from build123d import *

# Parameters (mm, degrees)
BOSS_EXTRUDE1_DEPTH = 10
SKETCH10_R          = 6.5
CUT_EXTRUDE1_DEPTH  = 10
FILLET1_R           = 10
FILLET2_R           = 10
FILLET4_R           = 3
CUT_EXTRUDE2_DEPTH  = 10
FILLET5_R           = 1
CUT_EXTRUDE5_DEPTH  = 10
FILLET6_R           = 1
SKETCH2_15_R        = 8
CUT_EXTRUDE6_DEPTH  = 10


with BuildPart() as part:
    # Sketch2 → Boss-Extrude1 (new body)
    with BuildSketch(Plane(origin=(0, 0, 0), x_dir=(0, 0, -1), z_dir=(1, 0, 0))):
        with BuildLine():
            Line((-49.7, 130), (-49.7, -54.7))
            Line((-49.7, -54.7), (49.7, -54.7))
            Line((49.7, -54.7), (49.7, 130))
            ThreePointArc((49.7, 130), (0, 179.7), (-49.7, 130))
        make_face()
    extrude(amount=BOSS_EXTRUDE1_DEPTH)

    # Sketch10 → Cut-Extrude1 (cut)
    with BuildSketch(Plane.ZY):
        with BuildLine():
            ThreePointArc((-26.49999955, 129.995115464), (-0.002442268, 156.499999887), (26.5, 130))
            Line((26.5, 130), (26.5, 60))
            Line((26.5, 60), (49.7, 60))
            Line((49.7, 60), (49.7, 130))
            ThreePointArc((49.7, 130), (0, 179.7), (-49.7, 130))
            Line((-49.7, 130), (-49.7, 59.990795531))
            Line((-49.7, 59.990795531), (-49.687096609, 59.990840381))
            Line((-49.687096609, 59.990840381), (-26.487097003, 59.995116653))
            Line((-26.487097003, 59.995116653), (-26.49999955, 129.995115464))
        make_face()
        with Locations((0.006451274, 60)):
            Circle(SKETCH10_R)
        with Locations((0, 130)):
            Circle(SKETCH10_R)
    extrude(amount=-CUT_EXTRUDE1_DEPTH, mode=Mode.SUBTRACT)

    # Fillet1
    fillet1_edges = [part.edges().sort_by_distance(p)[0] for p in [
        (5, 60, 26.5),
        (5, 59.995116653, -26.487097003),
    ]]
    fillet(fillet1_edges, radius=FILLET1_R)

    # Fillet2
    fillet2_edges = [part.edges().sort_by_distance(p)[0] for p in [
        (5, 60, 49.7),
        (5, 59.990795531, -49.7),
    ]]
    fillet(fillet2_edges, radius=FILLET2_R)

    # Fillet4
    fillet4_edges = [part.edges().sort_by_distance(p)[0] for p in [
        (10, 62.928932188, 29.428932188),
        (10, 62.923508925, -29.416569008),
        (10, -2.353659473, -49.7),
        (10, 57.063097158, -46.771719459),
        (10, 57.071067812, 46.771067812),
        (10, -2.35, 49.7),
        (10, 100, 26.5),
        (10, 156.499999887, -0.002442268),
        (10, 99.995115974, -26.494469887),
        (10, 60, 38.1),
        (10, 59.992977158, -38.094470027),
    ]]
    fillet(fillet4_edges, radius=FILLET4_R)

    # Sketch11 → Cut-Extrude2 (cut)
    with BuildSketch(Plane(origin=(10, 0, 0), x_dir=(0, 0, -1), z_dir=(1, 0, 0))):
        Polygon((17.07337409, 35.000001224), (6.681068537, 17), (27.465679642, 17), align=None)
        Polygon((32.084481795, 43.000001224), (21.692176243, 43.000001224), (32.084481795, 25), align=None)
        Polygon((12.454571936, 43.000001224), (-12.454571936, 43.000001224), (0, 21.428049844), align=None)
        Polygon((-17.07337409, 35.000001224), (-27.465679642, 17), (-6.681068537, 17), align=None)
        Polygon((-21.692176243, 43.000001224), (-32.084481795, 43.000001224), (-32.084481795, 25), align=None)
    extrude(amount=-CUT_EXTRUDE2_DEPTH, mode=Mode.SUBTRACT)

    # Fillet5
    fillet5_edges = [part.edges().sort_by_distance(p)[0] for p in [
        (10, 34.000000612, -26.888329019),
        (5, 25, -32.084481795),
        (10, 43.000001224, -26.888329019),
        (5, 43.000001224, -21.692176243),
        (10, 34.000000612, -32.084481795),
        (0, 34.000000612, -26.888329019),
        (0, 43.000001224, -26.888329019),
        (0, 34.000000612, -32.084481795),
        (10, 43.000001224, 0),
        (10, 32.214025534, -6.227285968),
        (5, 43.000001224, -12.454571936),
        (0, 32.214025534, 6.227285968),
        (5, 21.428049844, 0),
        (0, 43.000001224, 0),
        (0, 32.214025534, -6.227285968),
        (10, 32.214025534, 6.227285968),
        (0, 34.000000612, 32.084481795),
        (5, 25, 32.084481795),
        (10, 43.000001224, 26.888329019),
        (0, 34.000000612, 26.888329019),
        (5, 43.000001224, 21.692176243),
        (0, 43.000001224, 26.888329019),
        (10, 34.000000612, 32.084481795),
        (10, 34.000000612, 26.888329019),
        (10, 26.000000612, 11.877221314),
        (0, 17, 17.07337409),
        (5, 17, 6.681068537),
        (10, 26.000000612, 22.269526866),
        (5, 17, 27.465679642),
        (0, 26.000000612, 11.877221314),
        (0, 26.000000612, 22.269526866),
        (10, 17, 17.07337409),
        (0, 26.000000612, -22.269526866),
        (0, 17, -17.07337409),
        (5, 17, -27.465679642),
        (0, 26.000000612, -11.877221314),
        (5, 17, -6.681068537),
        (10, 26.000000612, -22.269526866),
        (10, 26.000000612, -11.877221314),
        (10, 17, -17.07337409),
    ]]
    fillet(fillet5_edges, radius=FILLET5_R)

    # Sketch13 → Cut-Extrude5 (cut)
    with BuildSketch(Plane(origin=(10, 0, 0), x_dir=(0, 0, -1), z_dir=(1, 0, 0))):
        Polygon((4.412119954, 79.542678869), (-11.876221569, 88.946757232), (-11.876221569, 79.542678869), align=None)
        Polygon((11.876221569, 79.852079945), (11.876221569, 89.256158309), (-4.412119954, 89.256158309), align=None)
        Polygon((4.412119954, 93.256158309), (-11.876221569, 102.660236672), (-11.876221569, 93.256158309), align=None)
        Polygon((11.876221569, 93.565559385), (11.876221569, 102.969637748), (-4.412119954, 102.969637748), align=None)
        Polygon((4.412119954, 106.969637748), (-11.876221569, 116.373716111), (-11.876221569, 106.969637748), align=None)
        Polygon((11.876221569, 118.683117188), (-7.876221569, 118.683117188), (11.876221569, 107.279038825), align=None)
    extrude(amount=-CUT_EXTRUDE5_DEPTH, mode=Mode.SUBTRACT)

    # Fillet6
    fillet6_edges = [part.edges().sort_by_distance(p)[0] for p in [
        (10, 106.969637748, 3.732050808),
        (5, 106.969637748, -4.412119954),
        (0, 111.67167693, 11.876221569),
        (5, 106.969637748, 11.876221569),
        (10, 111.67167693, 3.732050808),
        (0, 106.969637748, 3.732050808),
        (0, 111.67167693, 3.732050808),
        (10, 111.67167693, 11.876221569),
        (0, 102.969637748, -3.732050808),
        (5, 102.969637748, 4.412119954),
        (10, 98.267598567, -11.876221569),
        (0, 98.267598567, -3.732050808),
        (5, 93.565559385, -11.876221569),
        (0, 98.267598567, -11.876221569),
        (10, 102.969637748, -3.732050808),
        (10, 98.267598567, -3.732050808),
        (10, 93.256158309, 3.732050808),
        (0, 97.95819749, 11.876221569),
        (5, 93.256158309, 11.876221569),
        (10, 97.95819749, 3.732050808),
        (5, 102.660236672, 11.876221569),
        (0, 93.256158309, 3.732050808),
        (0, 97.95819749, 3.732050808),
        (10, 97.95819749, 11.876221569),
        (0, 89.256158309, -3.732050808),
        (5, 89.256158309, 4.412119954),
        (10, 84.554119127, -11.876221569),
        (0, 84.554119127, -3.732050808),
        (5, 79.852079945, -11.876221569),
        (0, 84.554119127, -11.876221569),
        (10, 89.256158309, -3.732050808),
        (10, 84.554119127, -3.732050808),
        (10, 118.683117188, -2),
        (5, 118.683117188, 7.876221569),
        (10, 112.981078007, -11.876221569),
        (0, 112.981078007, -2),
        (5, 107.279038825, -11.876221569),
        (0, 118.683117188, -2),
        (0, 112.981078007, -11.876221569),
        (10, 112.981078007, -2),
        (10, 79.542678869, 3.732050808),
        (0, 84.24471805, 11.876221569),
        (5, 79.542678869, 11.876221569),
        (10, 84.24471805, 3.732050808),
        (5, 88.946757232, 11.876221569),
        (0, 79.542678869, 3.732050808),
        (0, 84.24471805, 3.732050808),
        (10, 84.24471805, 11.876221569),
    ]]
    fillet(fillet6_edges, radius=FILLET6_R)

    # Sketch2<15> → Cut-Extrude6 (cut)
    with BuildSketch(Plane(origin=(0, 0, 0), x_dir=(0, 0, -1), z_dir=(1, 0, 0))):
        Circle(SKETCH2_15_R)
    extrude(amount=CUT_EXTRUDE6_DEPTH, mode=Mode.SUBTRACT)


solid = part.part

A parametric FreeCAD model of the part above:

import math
import FreeCAD as App
import Part
import Sketcher

V = App.Vector
Q = App.Units.Quantity


def edges_at(feature, points):
    """Names of the edges that pass closest to the given points."""
    edges = feature.Shape.Edges
    near = lambda p: min(range(len(edges)), key=lambda i: edges[i].distToShape(Part.Vertex(*p))[0])
    return sorted({f"Edge{near(p) + 1}" for p in points})


def add_polygon(sketch, points):
    """Adds a closed chain of lines whose ends are joined by coincident constraints."""
    first, n = sketch.GeometryCount, len(points)
    for a, b in zip(points, points[1:] + points[:1]):
        sketch.addGeometry(Part.LineSegment(App.Vector(*a, 0), App.Vector(*b, 0)), False)
    for i in range(n):
        sketch.addConstraint(Sketcher.Constraint("Coincident", first + i, 2, first + (i + 1) % n, 1))

doc = App.newDocument("Part")
body = doc.addObject("PartDesign::Body", "Body")

sketch1 = body.newObject("Sketcher::SketchObject", "Sketch")
sketch1.AttachmentSupport = (doc.getObject("YZ_Plane"), [""])
sketch1.MapMode = "FlatFace"
sketch1.addGeometry(Part.LineSegment(V(130, 50, 0), V(-55, 50, 0)), False)
sketch1.addGeometry(Part.LineSegment(V(-55, 50, 0), V(-55, -50, 0)), False)
sketch1.addGeometry(Part.LineSegment(V(-55, -50, 0), V(130, -50, 0)), False)
sketch1.addGeometry(Part.ArcOfCircle(Part.Circle(V(130, 0, 0), V(0, 0, 1), 50), math.radians(-90), math.radians(90)), False)
sketch1.addConstraint(Sketcher.Constraint("Coincident", 0, 2, 1, 1))
sketch1.addConstraint(Sketcher.Constraint("Coincident", 1, 2, 2, 1))
sketch1.addConstraint(Sketcher.Constraint("Tangent", 2, 2, 3, 1))
sketch1.addConstraint(Sketcher.Constraint("Tangent", 3, 2, 0, 1))
sketch1.addConstraint(Sketcher.Constraint("Horizontal", 0))
sketch1.addConstraint(Sketcher.Constraint("Vertical", 1))
sketch1.addConstraint(Sketcher.Constraint("Horizontal", 2))
sketch1.addConstraint(Sketcher.Constraint("PointOnObject", 3, 3, -1))
sketch1.addConstraint(Sketcher.Constraint("Radius", 3, 49.7))
sketch1.addConstraint(Sketcher.Constraint("DistanceX", 0, 2, 0, 1, 184.7))
sketch1.addConstraint(Sketcher.Constraint("DistanceX", -1, 1, 3, 3, 130.0))
pad1 = body.newObject("PartDesign::Pad", "Pad")
pad1.Profile = sketch1
pad1.Length = 10

sketch2 = body.newObject("Sketcher::SketchObject", "Sketch001")
sketch2.AttachmentSupport = (doc.getObject("YZ_Plane"), [""])
sketch2.MapMode = "FlatFace"
sketch2.addGeometry(Part.ArcOfCircle(Part.Circle(V(130, 0, 0), V(0, 0, 1), 26.5), math.radians(-90), math.radians(90)), False)
sketch2.addGeometry(Part.LineSegment(V(130, 26.5, 0), V(60, 26.5, 0)), False)
sketch2.addGeometry(Part.LineSegment(V(60, 26.5, 0), V(60, 49.7, 0)), False)
sketch2.addGeometry(Part.LineSegment(V(60, 49.7, 0), V(130, 49.7, 0)), False)
sketch2.addGeometry(Part.ArcOfCircle(Part.Circle(V(130, 0, 0), V(0, 0, 1), 49.7), math.radians(-90), math.radians(90)), False)
sketch2.addGeometry(Part.LineSegment(V(130, -49.7, 0), V(59.991, -49.7, 0)), False)
sketch2.addGeometry(Part.LineSegment(V(59.991, -49.7, 0), V(59.991, -49.687, 0)), False)
sketch2.addGeometry(Part.LineSegment(V(59.991, -49.687, 0), V(59.995, -26.487, 0)), False)
sketch2.addGeometry(Part.LineSegment(V(59.995, -26.487, 0), V(129.995, -26.5, 0)), False)
sketch2.addGeometry(Part.Circle(V(60, 0.006, 0), V(0, 0, 1), 6.5), False)
sketch2.addGeometry(Part.Circle(V(130, 0, 0), V(0, 0, 1), 6.5), False)
sketch2.addConstraint(Sketcher.Constraint("Tangent", 0, 2, 1, 1))
sketch2.addConstraint(Sketcher.Constraint("Coincident", 1, 2, 2, 1))
sketch2.addConstraint(Sketcher.Constraint("Coincident", 2, 2, 3, 1))
sketch2.addConstraint(Sketcher.Constraint("Tangent", 3, 2, 4, 2))
sketch2.addConstraint(Sketcher.Constraint("Tangent", 4, 1, 5, 1))
sketch2.addConstraint(Sketcher.Constraint("Coincident", 5, 2, 6, 1))
sketch2.addConstraint(Sketcher.Constraint("Coincident", 6, 2, 7, 1))
sketch2.addConstraint(Sketcher.Constraint("Coincident", 7, 2, 8, 1))
sketch2.addConstraint(Sketcher.Constraint("Tangent", 8, 2, 0, 1))
sketch2.addConstraint(Sketcher.Constraint("Horizontal", 1))
sketch2.addConstraint(Sketcher.Constraint("Vertical", 2))
sketch2.addConstraint(Sketcher.Constraint("Horizontal", 3))
sketch2.addConstraint(Sketcher.Constraint("Horizontal", 5))
sketch2.addConstraint(Sketcher.Constraint("Coincident", 4, 3, 0, 3))
sketch2.addConstraint(Sketcher.Constraint("Coincident", 10, 3, 0, 3))
sketch2.addConstraint(Sketcher.Constraint("Equal", 9, 10))
sketch2.addConstraint(Sketcher.Constraint("PointOnObject", 0, 3, -1))
sketch2.addConstraint(Sketcher.Constraint("Perpendicular", 7, 8))
sketch2.addConstraint(Sketcher.Constraint("Vertical", 9, 3, 1, 2))
sketch2.addConstraint(Sketcher.Constraint("Diameter", 9, 13.0))
sketch2.addConstraint(Sketcher.Constraint("Radius", 0, 26.5))
sketch2.addConstraint(Sketcher.Constraint("Radius", 4, 49.7))
sketch2.addConstraint(Sketcher.Constraint("DistanceX", 1, 2, 1, 1, 70.0))
sketch2.addConstraint(Sketcher.Constraint("Distance", 8, 70.0))
sketch2.addConstraint(Sketcher.Constraint("DistanceX", -1, 1, 0, 3, 130.0))
sketch2.addConstraint(Sketcher.Constraint("Distance", 7, 23.2))
sketch2.addConstraint(Sketcher.Constraint("DistanceX", 5, 2, 5, 1, 70.009204))
sketch2.addConstraint(Sketcher.Constraint("DistanceY", -1, 1, 9, 3, 0.006451))
sketch2.addConstraint(Sketcher.Constraint("DistanceX", -1, 1, 6, 2, 59.99084))
pocket1 = body.newObject("PartDesign::Pocket", "Pocket")
pocket1.Profile = sketch2
pocket1.Length = 10
pocket1.Reversed = True
doc.recompute()

fillet = body.newObject("PartDesign::Fillet", "Fillet")
fillet.Base = (pocket1, edges_at(pocket1, [(5, 60, 26.5), (5, 59.995, -26.487)]))
fillet.Radius = 10
doc.recompute()

fillet2 = body.newObject("PartDesign::Fillet", "Fillet001")
fillet2.Base = (fillet, edges_at(fillet, [(5, 60, 49.7), (5, 59.991, -49.7)]))
fillet2.Radius = 10
doc.recompute()

fillet3 = body.newObject("PartDesign::Fillet", "Fillet002")
fillet3.Base = (fillet2, edges_at(fillet2, [
    (10, 62.929, 29.429),
    (10, 62.924, -29.417),
    (10, -2.354, -49.7),
    (10, 57.063, -46.772),
    (10, 57.071, 46.771),
    (10, -2.35, 49.7),
    (10, 100, 26.5),
    (10, 156.5, -0.002),
    (10, 99.995, -26.494),
    (10, 60, 38.1),
    (10, 59.993, -38.094),
]))
fillet3.Radius = 3

sketch3 = body.newObject("Sketcher::SketchObject", "Sketch002")
sketch3.AttachmentSupport = (doc.getObject("YZ_Plane"), [""])
sketch3.MapMode = "FlatFace"
sketch3.AttachmentOffset = App.Placement(V(0, 0, 10), App.Rotation())
add_polygon(sketch3, [(35, -17), (17, -7), (17, -27)])
add_polygon(sketch3, [(43, -32), (43, -22), (25, -32)])
add_polygon(sketch3, [(43, -12), (43, 12), (21, 0)])
add_polygon(sketch3, [(35, 17), (17, 27), (17, 7)])
add_polygon(sketch3, [(43, 22), (43, 32), (25, 32)])
sketch3.addConstraint(Sketcher.Constraint("Vertical", 1))
sketch3.addConstraint(Sketcher.Constraint("Vertical", 3))
sketch3.addConstraint(Sketcher.Constraint("Horizontal", 5))
sketch3.addConstraint(Sketcher.Constraint("Vertical", 6))
sketch3.addConstraint(Sketcher.Constraint("Vertical", 10))
sketch3.addConstraint(Sketcher.Constraint("Vertical", 12))
sketch3.addConstraint(Sketcher.Constraint("Horizontal", 13))
sketch3.addConstraint(Sketcher.Constraint("Symmetric", 1, 2, 9, 2, -1))
sketch3.addConstraint(Sketcher.Constraint("Symmetric", 2, 2, 11, 2, -1))
sketch3.addConstraint(Sketcher.Constraint("Symmetric", 5, 2, 12, 2, -1))
sketch3.addConstraint(Sketcher.Constraint("PointOnObject", 7, 2, -1))
sketch3.addConstraint(Sketcher.Constraint("Parallel", 2, 4))
sketch3.addConstraint(Sketcher.Constraint("Parallel", 4, 7))
sketch3.addConstraint(Sketcher.Constraint("Parallel", 0, 8))
sketch3.addConstraint(Sketcher.Constraint("Parallel", 8, 9))
sketch3.addConstraint(Sketcher.Constraint("Parallel", 7, 11))
sketch3.addConstraint(Sketcher.Constraint("Parallel", 9, 14))
sketch3.addConstraint(Sketcher.Constraint("Vertical", 5, 2, 6, 2))
sketch3.addConstraint(Sketcher.Constraint("Vertical", 4, 2, 13, 2))
sketch3.addConstraint(Sketcher.Constraint("Equal", 2, 4))
sketch3.addConstraint(Sketcher.Constraint("DistanceX", 5, 1, 5, 2, 18.000001))
sketch3.addConstraint(Sketcher.Constraint("Angle", 0, Q("150 deg")))
sketch3.addConstraint(Sketcher.Constraint("DistanceX", -1, 1, 0, 2, 17.0))
sketch3.addConstraint(Sketcher.Constraint("DistanceX", -1, 1, 3, 2, 43.000001))
sketch3.addConstraint(Sketcher.Constraint("DistanceY", 6, 1, 6, 2, 24.909144))
sketch3.addConstraint(Sketcher.Constraint("DistanceY", 0, 2, -1, 1, 6.681069))
sketch3.addConstraint(Sketcher.Constraint("DistanceY", 4, 2, -1, 1, 32.084482))
pocket2 = body.newObject("PartDesign::Pocket", "Pocket001")
pocket2.Profile = sketch3
pocket2.Length = 10
doc.recompute()

fillet4 = body.newObject("PartDesign::Fillet", "Fillet003")
fillet4.Base = (pocket2, edges_at(pocket2, [
    (10, 34, -26.888),
    (5, 25, -32.084),
    (10, 43, -26.888),
    (5, 43, -21.692),
    (10, 34, -32.084),
    (0, 34, -26.888),
    (0, 43, -26.888),
    (0, 34, -32.084),
    (10, 43, 0),
    (10, 32.214, -6.227),
    (5, 43, -12.455),
    (0, 32.214, 6.227),
    (5, 21.428, 0),
    (0, 43, 0),
    (0, 32.214, -6.227),
    (10, 32.214, 6.227),
    (0, 34, 32.084),
    (5, 25, 32.084),
    (10, 43, 26.888),
    (0, 34, 26.888),
    (5, 43, 21.692),
    (0, 43, 26.888),
    (10, 34, 32.084),
    (10, 34, 26.888),
    (10, 26, 11.877),
    (0, 17, 17.073),
    (5, 17, 6.681),
    (10, 26, 22.27),
    (5, 17, 27.466),
    (0, 26, 11.877),
    (0, 26, 22.27),
    (10, 17, 17.073),
    (0, 26, -22.27),
    (0, 17, -17.073),
    (5, 17, -27.466),
    (0, 26, -11.877),
    (5, 17, -6.681),
    (10, 26, -22.27),
    (10, 26, -11.877),
    (10, 17, -17.073),
]))
fillet4.Radius = 1

sketch4 = body.newObject("Sketcher::SketchObject", "Sketch003")
sketch4.AttachmentSupport = (doc.getObject("YZ_Plane"), [""])
sketch4.MapMode = "FlatFace"
sketch4.AttachmentOffset = App.Placement(V(0, 0, 10), App.Rotation())
add_polygon(sketch4, [(80, -4), (89, 12), (80, 12)])
add_polygon(sketch4, [(80, -12), (89, -12), (89, 4)])
add_polygon(sketch4, [(93, -4), (103, 12), (93, 12)])
add_polygon(sketch4, [(94, -12), (103, -12), (103, 4)])
add_polygon(sketch4, [(107, -4), (116, 12), (107, 12)])
add_polygon(sketch4, [(119, -12), (119, 8), (107, -12)])
sketch4.addConstraint(Sketcher.Constraint("Horizontal", 1))
sketch4.addConstraint(Sketcher.Constraint("Vertical", 2))
sketch4.addConstraint(Sketcher.Constraint("Horizontal", 3))
sketch4.addConstraint(Sketcher.Constraint("Vertical", 4))
sketch4.addConstraint(Sketcher.Constraint("Horizontal", 7))
sketch4.addConstraint(Sketcher.Constraint("Vertical", 8))
sketch4.addConstraint(Sketcher.Constraint("Horizontal", 9))
sketch4.addConstraint(Sketcher.Constraint("Vertical", 10))
sketch4.addConstraint(Sketcher.Constraint("Horizontal", 13))
sketch4.addConstraint(Sketcher.Constraint("Vertical", 14))
sketch4.addConstraint(Sketcher.Constraint("Vertical", 15))
sketch4.addConstraint(Sketcher.Constraint("Horizontal", 17))
sketch4.addConstraint(Sketcher.Constraint("Parallel", 0, 5))
sketch4.addConstraint(Sketcher.Constraint("Parallel", 5, 6))
sketch4.addConstraint(Sketcher.Constraint("Parallel", 6, 11))
sketch4.addConstraint(Sketcher.Constraint("Parallel", 11, 12))
sketch4.addConstraint(Sketcher.Constraint("Parallel", 12, 16))
sketch4.addConstraint(Sketcher.Constraint("Horizontal", 1, 2, 6, 2))
sketch4.addConstraint(Sketcher.Constraint("Horizontal", 2, 2, 8, 2))
sketch4.addConstraint(Sketcher.Constraint("Horizontal", 5, 2, 9, 2))
sketch4.addConstraint(Sketcher.Constraint("Horizontal", 4, 2, 10, 2))
sketch4.addConstraint(Sketcher.Constraint("Horizontal", 7, 2, 12, 2))
sketch4.addConstraint(Sketcher.Constraint("Horizontal", 8, 2, 14, 2))
sketch4.addConstraint(Sketcher.Constraint("Horizontal", 11, 2, 16, 2))
sketch4.addConstraint(Sketcher.Constraint("Equal", 1, 3))
sketch4.addConstraint(Sketcher.Constraint("Angle", 0, Q("60 deg")))
sketch4.addConstraint(Sketcher.Constraint("DistanceX", 4, 2, 7, 2, 4.0))
sketch4.addConstraint(Sketcher.Constraint("DistanceX", 10, 2, 13, 2, 4.0))
sketch4.addConstraint(Sketcher.Constraint("DistanceY", 15, 2, 12, 2, 4.0))
sketch4.addConstraint(Sketcher.Constraint("DistanceX", 1, 2, 1, 1, 9.404078))
sketch4.addConstraint(Sketcher.Constraint("DistanceX", 17, 1, 17, 2, 11.404078))
sketch4.addConstraint(Sketcher.Constraint("DistanceX", 0, 2, 3, 2, 0.309401))
sketch4.addConstraint(Sketcher.Constraint("DistanceX", 6, 2, 9, 2, 0.309401))
sketch4.addConstraint(Sketcher.Constraint("DistanceX", 12, 2, 15, 2, 2.309401))
sketch4.addConstraint(Sketcher.Constraint("DistanceY", -1, 1, 0, 2, 11.876222))
sketch4.addConstraint(Sketcher.Constraint("DistanceX", -1, 1, 1, 2, 79.542679))
pocket3 = body.newObject("PartDesign::Pocket", "Pocket002")
pocket3.Profile = sketch4
pocket3.Length = 10
doc.recompute()

fillet5 = body.newObject("PartDesign::Fillet", "Fillet004")
fillet5.Base = (pocket3, edges_at(pocket3, [
    (10, 106.97, 3.732),
    (5, 106.97, -4.412),
    (0, 111.672, 11.876),
    (5, 106.97, 11.876),
    (10, 111.672, 3.732),
    (0, 106.97, 3.732),
    (0, 111.672, 3.732),
    (10, 111.672, 11.876),
    (0, 102.97, -3.732),
    (5, 102.97, 4.412),
    (10, 98.268, -11.876),
    (0, 98.268, -3.732),
    (5, 93.566, -11.876),
    (0, 98.268, -11.876),
    (10, 102.97, -3.732),
    (10, 98.268, -3.732),
    (10, 93.256, 3.732),
    (0, 97.958, 11.876),
    (5, 93.256, 11.876),
    (10, 97.958, 3.732),
    (5, 102.66, 11.876),
    (0, 93.256, 3.732),
    (0, 97.958, 3.732),
    (10, 97.958, 11.876),
    (0, 89.256, -3.732),
    (5, 89.256, 4.412),
    (10, 84.554, -11.876),
    (0, 84.554, -3.732),
    (5, 79.852, -11.876),
    (0, 84.554, -11.876),
    (10, 89.256, -3.732),
    (10, 84.554, -3.732),
    (10, 118.683, -2),
    (5, 118.683, 7.876),
    (10, 112.981, -11.876),
    (0, 112.981, -2),
    (5, 107.279, -11.876),
    (0, 118.683, -2),
    (0, 112.981, -11.876),
    (10, 112.981, -2),
    (10, 79.543, 3.732),
    (0, 84.245, 11.876),
    (5, 79.543, 11.876),
    (10, 84.245, 3.732),
    (5, 88.947, 11.876),
    (0, 79.543, 3.732),
    (0, 84.245, 3.732),
    (10, 84.245, 11.876),
]))
fillet5.Radius = 1

sketch5 = body.newObject("Sketcher::SketchObject", "Sketch004")
sketch5.AttachmentSupport = (doc.getObject("YZ_Plane"), [""])
sketch5.MapMode = "FlatFace"
sketch5.addGeometry(Part.Circle(V(0, 0, 0), V(0, 0, 1), 8), False)
sketch5.addConstraint(Sketcher.Constraint("Coincident", 0, 3, -1, 1))
sketch5.addConstraint(Sketcher.Constraint("Diameter", 0, 16.0))
pocket4 = body.newObject("PartDesign::Pocket", "Pocket003")
pocket4.Profile = sketch5
pocket4.Length = 10
pocket4.Reversed = True

doc.recompute()
